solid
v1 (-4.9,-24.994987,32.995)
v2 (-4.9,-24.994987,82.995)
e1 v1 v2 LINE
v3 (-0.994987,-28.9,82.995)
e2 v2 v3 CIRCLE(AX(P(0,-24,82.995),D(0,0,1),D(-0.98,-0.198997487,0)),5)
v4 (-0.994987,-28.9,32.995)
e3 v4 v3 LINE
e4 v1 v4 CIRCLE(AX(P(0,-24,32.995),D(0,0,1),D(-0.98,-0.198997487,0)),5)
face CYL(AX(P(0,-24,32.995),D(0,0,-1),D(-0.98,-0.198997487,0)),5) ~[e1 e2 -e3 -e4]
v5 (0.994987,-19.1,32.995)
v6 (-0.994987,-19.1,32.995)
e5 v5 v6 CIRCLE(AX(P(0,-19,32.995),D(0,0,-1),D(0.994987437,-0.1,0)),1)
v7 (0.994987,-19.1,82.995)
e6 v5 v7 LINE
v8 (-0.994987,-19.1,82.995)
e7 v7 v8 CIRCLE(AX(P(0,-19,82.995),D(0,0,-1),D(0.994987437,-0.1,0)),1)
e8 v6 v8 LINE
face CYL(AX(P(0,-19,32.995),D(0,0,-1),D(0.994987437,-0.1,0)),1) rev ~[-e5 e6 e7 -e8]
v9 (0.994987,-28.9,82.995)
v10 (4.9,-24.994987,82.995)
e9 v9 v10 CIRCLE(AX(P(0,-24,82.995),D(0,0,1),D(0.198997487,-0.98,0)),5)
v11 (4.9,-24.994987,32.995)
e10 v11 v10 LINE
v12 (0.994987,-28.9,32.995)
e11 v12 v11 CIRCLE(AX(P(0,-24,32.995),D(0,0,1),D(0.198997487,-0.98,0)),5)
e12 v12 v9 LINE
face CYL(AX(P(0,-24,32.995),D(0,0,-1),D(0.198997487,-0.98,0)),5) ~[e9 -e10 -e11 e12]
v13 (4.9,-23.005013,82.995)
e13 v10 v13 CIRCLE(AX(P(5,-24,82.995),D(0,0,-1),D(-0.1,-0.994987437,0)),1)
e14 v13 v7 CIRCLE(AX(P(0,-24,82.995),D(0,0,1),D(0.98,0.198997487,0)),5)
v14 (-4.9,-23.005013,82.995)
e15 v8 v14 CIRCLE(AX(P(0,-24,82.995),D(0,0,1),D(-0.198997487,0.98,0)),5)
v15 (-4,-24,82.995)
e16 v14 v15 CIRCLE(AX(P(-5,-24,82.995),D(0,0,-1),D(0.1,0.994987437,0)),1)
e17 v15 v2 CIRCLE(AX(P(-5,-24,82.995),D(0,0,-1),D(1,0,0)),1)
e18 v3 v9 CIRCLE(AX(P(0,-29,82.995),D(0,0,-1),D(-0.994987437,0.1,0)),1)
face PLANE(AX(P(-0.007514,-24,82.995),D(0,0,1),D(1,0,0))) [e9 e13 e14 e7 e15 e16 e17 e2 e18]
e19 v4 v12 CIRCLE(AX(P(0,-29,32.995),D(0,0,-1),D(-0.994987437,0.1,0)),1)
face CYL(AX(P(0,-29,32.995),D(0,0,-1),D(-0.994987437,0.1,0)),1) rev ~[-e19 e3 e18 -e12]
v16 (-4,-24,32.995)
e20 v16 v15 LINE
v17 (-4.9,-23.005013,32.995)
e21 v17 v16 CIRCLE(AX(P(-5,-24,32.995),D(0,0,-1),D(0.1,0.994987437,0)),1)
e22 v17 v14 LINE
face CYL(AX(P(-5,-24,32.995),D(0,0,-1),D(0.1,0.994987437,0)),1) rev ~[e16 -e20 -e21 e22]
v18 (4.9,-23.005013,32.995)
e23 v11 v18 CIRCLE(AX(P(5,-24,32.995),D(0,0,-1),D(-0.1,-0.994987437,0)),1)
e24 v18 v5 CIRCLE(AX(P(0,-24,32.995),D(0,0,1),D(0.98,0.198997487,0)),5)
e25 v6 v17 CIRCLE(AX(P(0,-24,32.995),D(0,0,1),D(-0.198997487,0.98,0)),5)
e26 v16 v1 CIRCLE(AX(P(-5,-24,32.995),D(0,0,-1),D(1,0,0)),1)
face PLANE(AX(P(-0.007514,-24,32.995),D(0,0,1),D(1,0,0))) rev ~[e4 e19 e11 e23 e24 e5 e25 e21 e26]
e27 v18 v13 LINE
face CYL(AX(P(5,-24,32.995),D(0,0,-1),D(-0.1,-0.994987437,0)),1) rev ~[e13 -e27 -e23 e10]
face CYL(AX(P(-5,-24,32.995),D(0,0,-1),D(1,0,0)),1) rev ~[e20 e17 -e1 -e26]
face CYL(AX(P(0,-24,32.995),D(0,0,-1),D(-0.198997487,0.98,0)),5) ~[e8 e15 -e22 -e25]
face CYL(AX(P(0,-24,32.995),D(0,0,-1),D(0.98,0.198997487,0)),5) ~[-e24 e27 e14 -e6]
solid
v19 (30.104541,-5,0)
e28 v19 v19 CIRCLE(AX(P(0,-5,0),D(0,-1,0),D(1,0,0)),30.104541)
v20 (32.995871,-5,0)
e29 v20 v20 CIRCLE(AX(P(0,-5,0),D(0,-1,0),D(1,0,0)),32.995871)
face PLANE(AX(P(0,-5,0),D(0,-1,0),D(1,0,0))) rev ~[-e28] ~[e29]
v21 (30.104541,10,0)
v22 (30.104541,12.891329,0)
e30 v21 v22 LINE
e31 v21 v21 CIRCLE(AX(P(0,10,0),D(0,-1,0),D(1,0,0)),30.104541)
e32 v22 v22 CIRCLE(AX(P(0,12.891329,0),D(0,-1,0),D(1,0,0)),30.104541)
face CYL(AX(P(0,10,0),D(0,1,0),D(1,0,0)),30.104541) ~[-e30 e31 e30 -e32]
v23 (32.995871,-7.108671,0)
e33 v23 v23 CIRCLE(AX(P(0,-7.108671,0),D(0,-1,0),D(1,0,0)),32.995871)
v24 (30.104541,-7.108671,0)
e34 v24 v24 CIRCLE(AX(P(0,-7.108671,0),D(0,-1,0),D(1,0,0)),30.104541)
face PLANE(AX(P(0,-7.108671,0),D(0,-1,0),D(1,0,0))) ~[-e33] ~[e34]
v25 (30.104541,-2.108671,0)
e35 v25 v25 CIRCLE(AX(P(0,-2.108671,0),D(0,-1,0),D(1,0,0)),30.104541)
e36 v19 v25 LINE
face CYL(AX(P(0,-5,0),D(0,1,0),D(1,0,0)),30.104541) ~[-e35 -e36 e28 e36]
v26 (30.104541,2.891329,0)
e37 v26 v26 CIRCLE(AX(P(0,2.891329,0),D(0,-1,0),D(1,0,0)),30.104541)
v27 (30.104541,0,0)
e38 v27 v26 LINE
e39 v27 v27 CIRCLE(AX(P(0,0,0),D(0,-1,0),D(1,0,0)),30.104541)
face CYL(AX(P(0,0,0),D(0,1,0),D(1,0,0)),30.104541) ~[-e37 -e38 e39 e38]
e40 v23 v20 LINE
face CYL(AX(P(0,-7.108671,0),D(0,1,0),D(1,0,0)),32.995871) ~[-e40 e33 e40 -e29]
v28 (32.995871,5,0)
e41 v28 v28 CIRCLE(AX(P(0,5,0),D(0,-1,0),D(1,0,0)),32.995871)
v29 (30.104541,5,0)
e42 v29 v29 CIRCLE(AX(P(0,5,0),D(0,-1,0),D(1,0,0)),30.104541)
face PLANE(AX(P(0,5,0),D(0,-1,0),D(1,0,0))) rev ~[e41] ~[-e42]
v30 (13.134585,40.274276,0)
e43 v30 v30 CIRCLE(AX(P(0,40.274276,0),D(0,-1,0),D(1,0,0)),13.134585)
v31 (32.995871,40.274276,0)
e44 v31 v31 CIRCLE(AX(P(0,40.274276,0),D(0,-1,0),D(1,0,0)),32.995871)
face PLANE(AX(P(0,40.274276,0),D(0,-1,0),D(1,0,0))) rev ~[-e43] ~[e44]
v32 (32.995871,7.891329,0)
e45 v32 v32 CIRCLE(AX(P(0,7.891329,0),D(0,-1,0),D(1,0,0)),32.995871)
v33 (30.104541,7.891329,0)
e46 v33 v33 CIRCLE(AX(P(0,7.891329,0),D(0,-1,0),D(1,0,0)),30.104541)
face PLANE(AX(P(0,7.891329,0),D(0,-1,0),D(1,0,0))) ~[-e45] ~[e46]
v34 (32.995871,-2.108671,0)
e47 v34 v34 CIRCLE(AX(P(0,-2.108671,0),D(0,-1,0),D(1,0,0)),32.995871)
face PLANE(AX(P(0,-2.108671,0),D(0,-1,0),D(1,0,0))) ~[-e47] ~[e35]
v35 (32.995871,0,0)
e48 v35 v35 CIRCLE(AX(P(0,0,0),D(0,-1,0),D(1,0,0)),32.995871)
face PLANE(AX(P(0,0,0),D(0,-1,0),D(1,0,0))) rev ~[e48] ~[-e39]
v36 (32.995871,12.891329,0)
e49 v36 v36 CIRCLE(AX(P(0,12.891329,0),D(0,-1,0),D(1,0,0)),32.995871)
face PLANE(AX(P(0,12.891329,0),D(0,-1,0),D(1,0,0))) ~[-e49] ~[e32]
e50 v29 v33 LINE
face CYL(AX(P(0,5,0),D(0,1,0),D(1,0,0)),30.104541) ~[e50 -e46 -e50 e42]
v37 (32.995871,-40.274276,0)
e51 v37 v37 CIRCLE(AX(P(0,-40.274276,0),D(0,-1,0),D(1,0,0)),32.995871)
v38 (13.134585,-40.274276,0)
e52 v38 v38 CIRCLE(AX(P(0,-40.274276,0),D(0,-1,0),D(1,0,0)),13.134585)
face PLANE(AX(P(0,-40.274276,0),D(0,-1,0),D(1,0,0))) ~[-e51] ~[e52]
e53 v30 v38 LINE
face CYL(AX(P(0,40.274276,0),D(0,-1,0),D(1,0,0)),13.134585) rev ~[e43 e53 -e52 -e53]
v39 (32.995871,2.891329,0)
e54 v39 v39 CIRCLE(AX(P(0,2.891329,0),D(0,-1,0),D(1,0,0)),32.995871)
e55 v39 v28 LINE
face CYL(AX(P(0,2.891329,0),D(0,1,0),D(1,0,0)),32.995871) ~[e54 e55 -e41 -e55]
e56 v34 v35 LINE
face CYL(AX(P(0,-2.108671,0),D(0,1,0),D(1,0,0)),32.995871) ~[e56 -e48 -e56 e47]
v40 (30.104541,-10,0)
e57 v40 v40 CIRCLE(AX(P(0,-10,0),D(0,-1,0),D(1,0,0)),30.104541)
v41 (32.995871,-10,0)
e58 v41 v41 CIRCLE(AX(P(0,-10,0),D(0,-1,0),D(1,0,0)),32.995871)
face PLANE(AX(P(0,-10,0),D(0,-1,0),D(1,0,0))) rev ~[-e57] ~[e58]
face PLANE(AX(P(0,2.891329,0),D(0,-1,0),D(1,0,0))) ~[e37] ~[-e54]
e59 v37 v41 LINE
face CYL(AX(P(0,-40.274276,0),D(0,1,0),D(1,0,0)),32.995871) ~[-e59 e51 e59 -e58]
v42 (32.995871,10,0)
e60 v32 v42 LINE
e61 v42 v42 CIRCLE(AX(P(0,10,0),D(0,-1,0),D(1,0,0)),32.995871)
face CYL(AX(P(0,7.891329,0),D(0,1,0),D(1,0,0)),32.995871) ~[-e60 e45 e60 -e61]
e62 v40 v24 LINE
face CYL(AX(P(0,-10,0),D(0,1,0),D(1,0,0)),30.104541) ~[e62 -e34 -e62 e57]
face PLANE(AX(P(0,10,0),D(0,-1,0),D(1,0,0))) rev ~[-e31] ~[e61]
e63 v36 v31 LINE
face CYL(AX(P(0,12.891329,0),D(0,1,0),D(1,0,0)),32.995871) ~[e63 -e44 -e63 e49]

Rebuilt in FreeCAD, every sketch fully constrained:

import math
import FreeCAD as App
import Part
import Sketcher
Q = App.Units.Quantity

doc = App.newDocument("Part")
body = doc.addObject("PartDesign::Body", "Body")

sketch1 = doc.addObject("Sketcher::SketchObject", "Sketch")
body.addObject(sketch1)
sketch1.AttachmentSupport = (doc.XY_Plane, [""])
sketch1.MapMode = "FlatFace"
sketch1.addGeometry(Part.LineSegment(App.Vector(33, 40.3, 0), App.Vector(13.1, 40.3, 0)), False)
sketch1.addGeometry(Part.LineSegment(App.Vector(13.1, 40.3, 0), App.Vector(13.1, -40.3, 0)), False)
sketch1.addGeometry(Part.LineSegment(App.Vector(13.1, -40.3, 0), App.Vector(33, -40.3, 0)), False)
sketch1.addGeometry(Part.LineSegment(App.Vector(33, -40.3, 0), App.Vector(33, -10, 0)), False)
sketch1.addGeometry(Part.LineSegment(App.Vector(33, -10, 0), App.Vector(30.1, -10, 0)), False)
sketch1.addGeometry(Part.LineSegment(App.Vector(30.1, -10, 0), App.Vector(30.1, -7.1, 0)), False)
sketch1.addGeometry(Part.LineSegment(App.Vector(30.1, -7.1, 0), App.Vector(33, -7.1, 0)), False)
sketch1.addGeometry(Part.LineSegment(App.Vector(33, -7.1, 0), App.Vector(33, -5, 0)), False)
sketch1.addGeometry(Part.LineSegment(App.Vector(33, -5, 0), App.Vector(30.1, -5, 0)), False)
sketch1.addGeometry(Part.LineSegment(App.Vector(30.1, -5, 0), App.Vector(30.1, -2.1, 0)), False)
sketch1.addGeometry(Part.LineSegment(App.Vector(30.1, -2.1, 0), App.Vector(33, -2.1, 0)), False)
sketch1.addGeometry(Part.LineSegment(App.Vector(33, -2.1, 0), App.Vector(33, 0, 0)), False)
sketch1.addGeometry(Part.LineSegment(App.Vector(33, 0, 0), App.Vector(30.1, 0, 0)), False)
sketch1.addGeometry(Part.LineSegment(App.Vector(30.1, 0, 0), App.Vector(30.1, 2.9, 0)), False)
sketch1.addGeometry(Part.LineSegment(App.Vector(30.1, 2.9, 0), App.Vector(33, 2.9, 0)), False)
sketch1.addGeometry(Part.LineSegment(App.Vector(33, 2.9, 0), App.Vector(33, 5, 0)), False)
sketch1.addGeometry(Part.LineSegment(App.Vector(33, 5, 0), App.Vector(30.1, 5, 0)), False)
sketch1.addGeometry(Part.LineSegment(App.Vector(30.1, 5, 0), App.Vector(30.1, 7.9, 0)), False)
sketch1.addGeometry(Part.LineSegment(App.Vector(30.1, 7.9, 0), App.Vector(33, 7.9, 0)), False)
sketch1.addGeometry(Part.LineSegment(App.Vector(33, 7.9, 0), App.Vector(33, 10, 0)), False)
sketch1.addGeometry(Part.LineSegment(App.Vector(33, 10, 0), App.Vector(30.1, 10, 0)), False)
sketch1.addGeometry(Part.LineSegment(App.Vector(30.1, 10, 0), App.Vector(30.1, 12.9, 0)), False)
sketch1.addGeometry(Part.LineSegment(App.Vector(30.1, 12.9, 0), App.Vector(33, 12.9, 0)), False)
sketch1.addGeometry(Part.LineSegment(App.Vector(33, 12.9, 0), App.Vector(33, 40.3, 0)), False)
sketch1.addConstraint(Sketcher.Constraint("Coincident", 0, 2, 1, 1))
sketch1.addConstraint(Sketcher.Constraint("Coincident", 1, 2, 2, 1))
sketch1.addConstraint(Sketcher.Constraint("Coincident", 2, 2, 3, 1))
sketch1.addConstraint(Sketcher.Constraint("Coincident", 3, 2, 4, 1))
sketch1.addConstraint(Sketcher.Constraint("Coincident", 4, 2, 5, 1))
sketch1.addConstraint(Sketcher.Constraint("Coincident", 5, 2, 6, 1))
sketch1.addConstraint(Sketcher.Constraint("Coincident", 6, 2, 7, 1))
sketch1.addConstraint(Sketcher.Constraint("Coincident", 7, 2, 8, 1))
sketch1.addConstraint(Sketcher.Constraint("Coincident", 8, 2, 9, 1))
sketch1.addConstraint(Sketcher.Constraint("Coincident", 9, 2, 10, 1))
sketch1.addConstraint(Sketcher.Constraint("Coincident", 10, 2, 11, 1))
sketch1.addConstraint(Sketcher.Constraint("Coincident", 11, 2, 12, 1))
sketch1.addConstraint(Sketcher.Constraint("Coincident", 12, 2, 13, 1))
sketch1.addConstraint(Sketcher.Constraint("Coincident", 13, 2, 14, 1))
sketch1.addConstraint(Sketcher.Constraint("Coincident", 14, 2, 15, 1))
sketch1.addConstraint(Sketcher.Constraint("Coincident", 15, 2, 16, 1))
sketch1.addConstraint(Sketcher.Constraint("Coincident", 16, 2, 17, 1))
sketch1.addConstraint(Sketcher.Constraint("Coincident", 17, 2, 18, 1))
sketch1.addConstraint(Sketcher.Constraint("Coincident", 18, 2, 19, 1))
sketch1.addConstraint(Sketcher.Constraint("Coincident", 19, 2, 20, 1))
sketch1.addConstraint(Sketcher.Constraint("Coincident", 20, 2, 21, 1))
sketch1.addConstraint(Sketcher.Constraint("Coincident", 21, 2, 22, 1))
sketch1.addConstraint(Sketcher.Constraint("Coincident", 22, 2, 23, 1))
sketch1.addConstraint(Sketcher.Constraint("Coincident", 23, 2, 0, 1))
sketch1.addConstraint(Sketcher.Constraint("Horizontal", 0))
sketch1.addConstraint(Sketcher.Constraint("Vertical", 1))
sketch1.addConstraint(Sketcher.Constraint("Horizontal", 2))
sketch1.addConstraint(Sketcher.Constraint("Vertical", 3))
sketch1.addConstraint(Sketcher.Constraint("Horizontal", 4))
sketch1.addConstraint(Sketcher.Constraint("Vertical", 5))
sketch1.addConstraint(Sketcher.Constraint("Horizontal", 6))
sketch1.addConstraint(Sketcher.Constraint("Vertical", 7))
sketch1.addConstraint(Sketcher.Constraint("Horizontal", 8))
sketch1.addConstraint(Sketcher.Constraint("Vertical", 9))
sketch1.addConstraint(Sketcher.Constraint("Horizontal", 10))
sketch1.addConstraint(Sketcher.Constraint("Vertical", 11))
sketch1.addConstraint(Sketcher.Constraint("Horizontal", 12))
sketch1.addConstraint(Sketcher.Constraint("Vertical", 13))
sketch1.addConstraint(Sketcher.Constraint("Horizontal", 14))
sketch1.addConstraint(Sketcher.Constraint("Vertical", 15))
sketch1.addConstraint(Sketcher.Constraint("Horizontal", 16))
sketch1.addConstraint(Sketcher.Constraint("Vertical", 17))
sketch1.addConstraint(Sketcher.Constraint("Horizontal", 18))
sketch1.addConstraint(Sketcher.Constraint("Vertical", 19))
sketch1.addConstraint(Sketcher.Constraint("Horizontal", 20))
sketch1.addConstraint(Sketcher.Constraint("Vertical", 21))
sketch1.addConstraint(Sketcher.Constraint("Horizontal", 22))
sketch1.addConstraint(Sketcher.Constraint("Vertical", 23))
sketch1.addConstraint(Sketcher.Constraint("Symmetric", 7, 2, 15, 2, -1))
sketch1.addConstraint(Sketcher.Constraint("Symmetric", 3, 2, 19, 2, -1))
sketch1.addConstraint(Sketcher.Constraint("Symmetric", 2, 2, 23, 2, -1))
sketch1.addConstraint(Sketcher.Constraint("PointOnObject", 11, 2, -1))
sketch1.addConstraint(Sketcher.Constraint("Vertical", 3, 2, 6, 2))
sketch1.addConstraint(Sketcher.Constraint("Vertical", 5, 2, 8, 2))
sketch1.addConstraint(Sketcher.Constraint("Vertical", 7, 2, 10, 2))
sketch1.addConstraint(Sketcher.Constraint("Vertical", 9, 2, 12, 2))
sketch1.addConstraint(Sketcher.Constraint("Vertical", 13, 2, 16, 2))
sketch1.addConstraint(Sketcher.Constraint("Vertical", 17, 2, 20, 2))
sketch1.addConstraint(Sketcher.Constraint("Equal", 22, 5))
sketch1.addConstraint(Sketcher.Constraint("Equal", 5, 9))
sketch1.addConstraint(Sketcher.Constraint("Equal", 7, 11))
sketch1.addConstraint(Sketcher.Constraint("Equal", 9, 13))
sketch1.addConstraint(Sketcher.Constraint("Equal", 13, 17))
sketch1.addConstraint(Sketcher.Constraint("Equal", 17, 21))
sketch1.addConstraint(Sketcher.Constraint("DistanceY", 3, 2, -1, 1, Q("10 mm")))
sketch1.addConstraint(Sketcher.Constraint("DistanceX", 4, 2, 4, 1, Q("2.891329 mm")))
sketch1.addConstraint(Sketcher.Constraint("DistanceY", 1, 2, 1, 1, Q("80.548551 mm")))
sketch1.addConstraint(Sketcher.Constraint("DistanceX", 0, 2, 0, 1, Q("19.861286 mm")))
sketch1.addConstraint(Sketcher.Constraint("DistanceX", -1, 1, 2, 2, Q("32.995871 mm")))
revolution = doc.addObject("PartDesign::Revolution", "Revolution")
body.addObject(revolution)
revolution.Profile = sketch1
revolution.ReferenceAxis = (sketch1, ["V_Axis"])
revolution.Angle = 360
body2 = doc.addObject("PartDesign::Body", "Body001")

sketch2 = doc.addObject("Sketcher::SketchObject", "Sketch001")
body2.addObject(sketch2)
sketch2.AttachmentSupport = (doc.getObject("XY_Plane001"), [""])
sketch2.MapMode = "FlatFace"
sketch2.AttachmentOffset = App.Placement(App.Vector(0, 0, 32.995), App.Rotation())
sketch2.addGeometry(Part.ArcOfCircle(Part.Circle(App.Vector(5, -24, 0), App.Vector(0, 0, 1), 1), math.radians(96), math.radians(264)), False)
sketch2.addGeometry(Part.ArcOfCircle(Part.Circle(App.Vector(0, -24, 0), App.Vector(0, 0, 1), 5), math.radians(11), math.radians(79)), False)
sketch2.addGeometry(Part.ArcOfCircle(Part.Circle(App.Vector(0, -19, 0), App.Vector(0, 0, 1), 1), math.radians(-174), math.radians(-6)), False)
sketch2.addGeometry(Part.ArcOfCircle(Part.Circle(App.Vector(0, -24, 0), App.Vector(0, 0, 1), 5), math.radians(101), math.radians(169)), False)
sketch2.addGeometry(Part.ArcOfCircle(Part.Circle(App.Vector(-5, -24, 0), App.Vector(0, 0, 1), 1), math.radians(0), math.radians(84)), False)
sketch2.addGeometry(Part.ArcOfCircle(Part.Circle(App.Vector(-5, -24, 0), App.Vector(0, 0, 1), 1), math.radians(-84), math.radians(0)), False)
sketch2.addGeometry(Part.ArcOfCircle(Part.Circle(App.Vector(0, -24, 0), App.Vector(0, 0, 1), 5), math.radians(-169), math.radians(-101)), False)
sketch2.addGeometry(Part.ArcOfCircle(Part.Circle(App.Vector(0, -29, 0), App.Vector(0, 0, 1), 1), math.radians(6), math.radians(174)), False)
sketch2.addGeometry(Part.ArcOfCircle(Part.Circle(App.Vector(0, -24, 0), App.Vector(0, 0, 1), 5), math.radians(-79), math.radians(-11)), False)
sketch2.addConstraint(Sketcher.Constraint("Coincident", 0, 1, 1, 1))
sketch2.addConstraint(Sketcher.Constraint("Coincident", 1, 2, 2, 2))
sketch2.addConstraint(Sketcher.Constraint("Coincident", 2, 1, 3, 1))
sketch2.addConstraint(Sketcher.Constraint("Coincident", 3, 2, 4, 2))
sketch2.addConstraint(Sketcher.Constraint("Tangent", 4, 1, 5, 2))
sketch2.addConstraint(Sketcher.Constraint("Coincident", 5, 1, 6, 1))
sketch2.addConstraint(Sketcher.Constraint("Coincident", 6, 2, 7, 2))
sketch2.addConstraint(Sketcher.Constraint("Coincident", 7, 1, 8, 1))
sketch2.addConstraint(Sketcher.Constraint("Coincident", 8, 2, 0, 2))
sketch2.addConstraint(Sketcher.Constraint("Coincident", 3, 3, 1, 3))
sketch2.addConstraint(Sketcher.Constraint("Coincident", 6, 3, 1, 3))
sketch2.addConstraint(Sketcher.Constraint("Coincident", 8, 3, 1, 3))
sketch2.addConstraint(Sketcher.Constraint("Equal", 0, 2))
sketch2.addConstraint(Sketcher.Constraint("Equal", 1, 3))
sketch2.addConstraint(Sketcher.Constraint("Equal", 2, 4))
sketch2.addConstraint(Sketcher.Constraint("Equal", 4, 5))
sketch2.addConstraint(Sketcher.Constraint("Equal", 3, 6))
sketch2.addConstraint(Sketcher.Constraint("Equal", 5, 7))
sketch2.addConstraint(Sketcher.Constraint("Equal", 6, 8))
sketch2.addConstraint(Sketcher.Constraint("Symmetric", 0, 3, 4, 3, -2))
sketch2.addConstraint(Sketcher.Constraint("Symmetric", 1, 2, 2, 1, -2))
sketch2.addConstraint(Sketcher.Constraint("PointOnObject", 7, 3, -2))
sketch2.addConstraint(Sketcher.Constraint("Horizontal", 0, 3, 1, 3))
sketch2.addConstraint(Sketcher.Constraint("Horizontal", 8, 3, 4, 1))
sketch2.addConstraint(Sketcher.Constraint("Vertical", 2, 1, 6, 2))
sketch2.addConstraint(Sketcher.Constraint("Radius", 0, Q("1 mm")))
sketch2.addConstraint(Sketcher.Constraint("Radius", 1, Q("5 mm")))
sketch2.addConstraint(Sketcher.Constraint("DistanceX", -1, 1, 0, 3, Q("5 mm")))
sketch2.addConstraint(Sketcher.Constraint("DistanceY", 0, 3, -1, 1, Q("24 mm")))
sketch2.addConstraint(Sketcher.Constraint("DistanceY", 2, 3, -1, 1, Q("19 mm")))
pad1 = doc.addObject("PartDesign::Pad", "Pad")
body2.addObject(pad1)
pad1.Profile = sketch2
pad1.Length = 50

doc.recompute()
